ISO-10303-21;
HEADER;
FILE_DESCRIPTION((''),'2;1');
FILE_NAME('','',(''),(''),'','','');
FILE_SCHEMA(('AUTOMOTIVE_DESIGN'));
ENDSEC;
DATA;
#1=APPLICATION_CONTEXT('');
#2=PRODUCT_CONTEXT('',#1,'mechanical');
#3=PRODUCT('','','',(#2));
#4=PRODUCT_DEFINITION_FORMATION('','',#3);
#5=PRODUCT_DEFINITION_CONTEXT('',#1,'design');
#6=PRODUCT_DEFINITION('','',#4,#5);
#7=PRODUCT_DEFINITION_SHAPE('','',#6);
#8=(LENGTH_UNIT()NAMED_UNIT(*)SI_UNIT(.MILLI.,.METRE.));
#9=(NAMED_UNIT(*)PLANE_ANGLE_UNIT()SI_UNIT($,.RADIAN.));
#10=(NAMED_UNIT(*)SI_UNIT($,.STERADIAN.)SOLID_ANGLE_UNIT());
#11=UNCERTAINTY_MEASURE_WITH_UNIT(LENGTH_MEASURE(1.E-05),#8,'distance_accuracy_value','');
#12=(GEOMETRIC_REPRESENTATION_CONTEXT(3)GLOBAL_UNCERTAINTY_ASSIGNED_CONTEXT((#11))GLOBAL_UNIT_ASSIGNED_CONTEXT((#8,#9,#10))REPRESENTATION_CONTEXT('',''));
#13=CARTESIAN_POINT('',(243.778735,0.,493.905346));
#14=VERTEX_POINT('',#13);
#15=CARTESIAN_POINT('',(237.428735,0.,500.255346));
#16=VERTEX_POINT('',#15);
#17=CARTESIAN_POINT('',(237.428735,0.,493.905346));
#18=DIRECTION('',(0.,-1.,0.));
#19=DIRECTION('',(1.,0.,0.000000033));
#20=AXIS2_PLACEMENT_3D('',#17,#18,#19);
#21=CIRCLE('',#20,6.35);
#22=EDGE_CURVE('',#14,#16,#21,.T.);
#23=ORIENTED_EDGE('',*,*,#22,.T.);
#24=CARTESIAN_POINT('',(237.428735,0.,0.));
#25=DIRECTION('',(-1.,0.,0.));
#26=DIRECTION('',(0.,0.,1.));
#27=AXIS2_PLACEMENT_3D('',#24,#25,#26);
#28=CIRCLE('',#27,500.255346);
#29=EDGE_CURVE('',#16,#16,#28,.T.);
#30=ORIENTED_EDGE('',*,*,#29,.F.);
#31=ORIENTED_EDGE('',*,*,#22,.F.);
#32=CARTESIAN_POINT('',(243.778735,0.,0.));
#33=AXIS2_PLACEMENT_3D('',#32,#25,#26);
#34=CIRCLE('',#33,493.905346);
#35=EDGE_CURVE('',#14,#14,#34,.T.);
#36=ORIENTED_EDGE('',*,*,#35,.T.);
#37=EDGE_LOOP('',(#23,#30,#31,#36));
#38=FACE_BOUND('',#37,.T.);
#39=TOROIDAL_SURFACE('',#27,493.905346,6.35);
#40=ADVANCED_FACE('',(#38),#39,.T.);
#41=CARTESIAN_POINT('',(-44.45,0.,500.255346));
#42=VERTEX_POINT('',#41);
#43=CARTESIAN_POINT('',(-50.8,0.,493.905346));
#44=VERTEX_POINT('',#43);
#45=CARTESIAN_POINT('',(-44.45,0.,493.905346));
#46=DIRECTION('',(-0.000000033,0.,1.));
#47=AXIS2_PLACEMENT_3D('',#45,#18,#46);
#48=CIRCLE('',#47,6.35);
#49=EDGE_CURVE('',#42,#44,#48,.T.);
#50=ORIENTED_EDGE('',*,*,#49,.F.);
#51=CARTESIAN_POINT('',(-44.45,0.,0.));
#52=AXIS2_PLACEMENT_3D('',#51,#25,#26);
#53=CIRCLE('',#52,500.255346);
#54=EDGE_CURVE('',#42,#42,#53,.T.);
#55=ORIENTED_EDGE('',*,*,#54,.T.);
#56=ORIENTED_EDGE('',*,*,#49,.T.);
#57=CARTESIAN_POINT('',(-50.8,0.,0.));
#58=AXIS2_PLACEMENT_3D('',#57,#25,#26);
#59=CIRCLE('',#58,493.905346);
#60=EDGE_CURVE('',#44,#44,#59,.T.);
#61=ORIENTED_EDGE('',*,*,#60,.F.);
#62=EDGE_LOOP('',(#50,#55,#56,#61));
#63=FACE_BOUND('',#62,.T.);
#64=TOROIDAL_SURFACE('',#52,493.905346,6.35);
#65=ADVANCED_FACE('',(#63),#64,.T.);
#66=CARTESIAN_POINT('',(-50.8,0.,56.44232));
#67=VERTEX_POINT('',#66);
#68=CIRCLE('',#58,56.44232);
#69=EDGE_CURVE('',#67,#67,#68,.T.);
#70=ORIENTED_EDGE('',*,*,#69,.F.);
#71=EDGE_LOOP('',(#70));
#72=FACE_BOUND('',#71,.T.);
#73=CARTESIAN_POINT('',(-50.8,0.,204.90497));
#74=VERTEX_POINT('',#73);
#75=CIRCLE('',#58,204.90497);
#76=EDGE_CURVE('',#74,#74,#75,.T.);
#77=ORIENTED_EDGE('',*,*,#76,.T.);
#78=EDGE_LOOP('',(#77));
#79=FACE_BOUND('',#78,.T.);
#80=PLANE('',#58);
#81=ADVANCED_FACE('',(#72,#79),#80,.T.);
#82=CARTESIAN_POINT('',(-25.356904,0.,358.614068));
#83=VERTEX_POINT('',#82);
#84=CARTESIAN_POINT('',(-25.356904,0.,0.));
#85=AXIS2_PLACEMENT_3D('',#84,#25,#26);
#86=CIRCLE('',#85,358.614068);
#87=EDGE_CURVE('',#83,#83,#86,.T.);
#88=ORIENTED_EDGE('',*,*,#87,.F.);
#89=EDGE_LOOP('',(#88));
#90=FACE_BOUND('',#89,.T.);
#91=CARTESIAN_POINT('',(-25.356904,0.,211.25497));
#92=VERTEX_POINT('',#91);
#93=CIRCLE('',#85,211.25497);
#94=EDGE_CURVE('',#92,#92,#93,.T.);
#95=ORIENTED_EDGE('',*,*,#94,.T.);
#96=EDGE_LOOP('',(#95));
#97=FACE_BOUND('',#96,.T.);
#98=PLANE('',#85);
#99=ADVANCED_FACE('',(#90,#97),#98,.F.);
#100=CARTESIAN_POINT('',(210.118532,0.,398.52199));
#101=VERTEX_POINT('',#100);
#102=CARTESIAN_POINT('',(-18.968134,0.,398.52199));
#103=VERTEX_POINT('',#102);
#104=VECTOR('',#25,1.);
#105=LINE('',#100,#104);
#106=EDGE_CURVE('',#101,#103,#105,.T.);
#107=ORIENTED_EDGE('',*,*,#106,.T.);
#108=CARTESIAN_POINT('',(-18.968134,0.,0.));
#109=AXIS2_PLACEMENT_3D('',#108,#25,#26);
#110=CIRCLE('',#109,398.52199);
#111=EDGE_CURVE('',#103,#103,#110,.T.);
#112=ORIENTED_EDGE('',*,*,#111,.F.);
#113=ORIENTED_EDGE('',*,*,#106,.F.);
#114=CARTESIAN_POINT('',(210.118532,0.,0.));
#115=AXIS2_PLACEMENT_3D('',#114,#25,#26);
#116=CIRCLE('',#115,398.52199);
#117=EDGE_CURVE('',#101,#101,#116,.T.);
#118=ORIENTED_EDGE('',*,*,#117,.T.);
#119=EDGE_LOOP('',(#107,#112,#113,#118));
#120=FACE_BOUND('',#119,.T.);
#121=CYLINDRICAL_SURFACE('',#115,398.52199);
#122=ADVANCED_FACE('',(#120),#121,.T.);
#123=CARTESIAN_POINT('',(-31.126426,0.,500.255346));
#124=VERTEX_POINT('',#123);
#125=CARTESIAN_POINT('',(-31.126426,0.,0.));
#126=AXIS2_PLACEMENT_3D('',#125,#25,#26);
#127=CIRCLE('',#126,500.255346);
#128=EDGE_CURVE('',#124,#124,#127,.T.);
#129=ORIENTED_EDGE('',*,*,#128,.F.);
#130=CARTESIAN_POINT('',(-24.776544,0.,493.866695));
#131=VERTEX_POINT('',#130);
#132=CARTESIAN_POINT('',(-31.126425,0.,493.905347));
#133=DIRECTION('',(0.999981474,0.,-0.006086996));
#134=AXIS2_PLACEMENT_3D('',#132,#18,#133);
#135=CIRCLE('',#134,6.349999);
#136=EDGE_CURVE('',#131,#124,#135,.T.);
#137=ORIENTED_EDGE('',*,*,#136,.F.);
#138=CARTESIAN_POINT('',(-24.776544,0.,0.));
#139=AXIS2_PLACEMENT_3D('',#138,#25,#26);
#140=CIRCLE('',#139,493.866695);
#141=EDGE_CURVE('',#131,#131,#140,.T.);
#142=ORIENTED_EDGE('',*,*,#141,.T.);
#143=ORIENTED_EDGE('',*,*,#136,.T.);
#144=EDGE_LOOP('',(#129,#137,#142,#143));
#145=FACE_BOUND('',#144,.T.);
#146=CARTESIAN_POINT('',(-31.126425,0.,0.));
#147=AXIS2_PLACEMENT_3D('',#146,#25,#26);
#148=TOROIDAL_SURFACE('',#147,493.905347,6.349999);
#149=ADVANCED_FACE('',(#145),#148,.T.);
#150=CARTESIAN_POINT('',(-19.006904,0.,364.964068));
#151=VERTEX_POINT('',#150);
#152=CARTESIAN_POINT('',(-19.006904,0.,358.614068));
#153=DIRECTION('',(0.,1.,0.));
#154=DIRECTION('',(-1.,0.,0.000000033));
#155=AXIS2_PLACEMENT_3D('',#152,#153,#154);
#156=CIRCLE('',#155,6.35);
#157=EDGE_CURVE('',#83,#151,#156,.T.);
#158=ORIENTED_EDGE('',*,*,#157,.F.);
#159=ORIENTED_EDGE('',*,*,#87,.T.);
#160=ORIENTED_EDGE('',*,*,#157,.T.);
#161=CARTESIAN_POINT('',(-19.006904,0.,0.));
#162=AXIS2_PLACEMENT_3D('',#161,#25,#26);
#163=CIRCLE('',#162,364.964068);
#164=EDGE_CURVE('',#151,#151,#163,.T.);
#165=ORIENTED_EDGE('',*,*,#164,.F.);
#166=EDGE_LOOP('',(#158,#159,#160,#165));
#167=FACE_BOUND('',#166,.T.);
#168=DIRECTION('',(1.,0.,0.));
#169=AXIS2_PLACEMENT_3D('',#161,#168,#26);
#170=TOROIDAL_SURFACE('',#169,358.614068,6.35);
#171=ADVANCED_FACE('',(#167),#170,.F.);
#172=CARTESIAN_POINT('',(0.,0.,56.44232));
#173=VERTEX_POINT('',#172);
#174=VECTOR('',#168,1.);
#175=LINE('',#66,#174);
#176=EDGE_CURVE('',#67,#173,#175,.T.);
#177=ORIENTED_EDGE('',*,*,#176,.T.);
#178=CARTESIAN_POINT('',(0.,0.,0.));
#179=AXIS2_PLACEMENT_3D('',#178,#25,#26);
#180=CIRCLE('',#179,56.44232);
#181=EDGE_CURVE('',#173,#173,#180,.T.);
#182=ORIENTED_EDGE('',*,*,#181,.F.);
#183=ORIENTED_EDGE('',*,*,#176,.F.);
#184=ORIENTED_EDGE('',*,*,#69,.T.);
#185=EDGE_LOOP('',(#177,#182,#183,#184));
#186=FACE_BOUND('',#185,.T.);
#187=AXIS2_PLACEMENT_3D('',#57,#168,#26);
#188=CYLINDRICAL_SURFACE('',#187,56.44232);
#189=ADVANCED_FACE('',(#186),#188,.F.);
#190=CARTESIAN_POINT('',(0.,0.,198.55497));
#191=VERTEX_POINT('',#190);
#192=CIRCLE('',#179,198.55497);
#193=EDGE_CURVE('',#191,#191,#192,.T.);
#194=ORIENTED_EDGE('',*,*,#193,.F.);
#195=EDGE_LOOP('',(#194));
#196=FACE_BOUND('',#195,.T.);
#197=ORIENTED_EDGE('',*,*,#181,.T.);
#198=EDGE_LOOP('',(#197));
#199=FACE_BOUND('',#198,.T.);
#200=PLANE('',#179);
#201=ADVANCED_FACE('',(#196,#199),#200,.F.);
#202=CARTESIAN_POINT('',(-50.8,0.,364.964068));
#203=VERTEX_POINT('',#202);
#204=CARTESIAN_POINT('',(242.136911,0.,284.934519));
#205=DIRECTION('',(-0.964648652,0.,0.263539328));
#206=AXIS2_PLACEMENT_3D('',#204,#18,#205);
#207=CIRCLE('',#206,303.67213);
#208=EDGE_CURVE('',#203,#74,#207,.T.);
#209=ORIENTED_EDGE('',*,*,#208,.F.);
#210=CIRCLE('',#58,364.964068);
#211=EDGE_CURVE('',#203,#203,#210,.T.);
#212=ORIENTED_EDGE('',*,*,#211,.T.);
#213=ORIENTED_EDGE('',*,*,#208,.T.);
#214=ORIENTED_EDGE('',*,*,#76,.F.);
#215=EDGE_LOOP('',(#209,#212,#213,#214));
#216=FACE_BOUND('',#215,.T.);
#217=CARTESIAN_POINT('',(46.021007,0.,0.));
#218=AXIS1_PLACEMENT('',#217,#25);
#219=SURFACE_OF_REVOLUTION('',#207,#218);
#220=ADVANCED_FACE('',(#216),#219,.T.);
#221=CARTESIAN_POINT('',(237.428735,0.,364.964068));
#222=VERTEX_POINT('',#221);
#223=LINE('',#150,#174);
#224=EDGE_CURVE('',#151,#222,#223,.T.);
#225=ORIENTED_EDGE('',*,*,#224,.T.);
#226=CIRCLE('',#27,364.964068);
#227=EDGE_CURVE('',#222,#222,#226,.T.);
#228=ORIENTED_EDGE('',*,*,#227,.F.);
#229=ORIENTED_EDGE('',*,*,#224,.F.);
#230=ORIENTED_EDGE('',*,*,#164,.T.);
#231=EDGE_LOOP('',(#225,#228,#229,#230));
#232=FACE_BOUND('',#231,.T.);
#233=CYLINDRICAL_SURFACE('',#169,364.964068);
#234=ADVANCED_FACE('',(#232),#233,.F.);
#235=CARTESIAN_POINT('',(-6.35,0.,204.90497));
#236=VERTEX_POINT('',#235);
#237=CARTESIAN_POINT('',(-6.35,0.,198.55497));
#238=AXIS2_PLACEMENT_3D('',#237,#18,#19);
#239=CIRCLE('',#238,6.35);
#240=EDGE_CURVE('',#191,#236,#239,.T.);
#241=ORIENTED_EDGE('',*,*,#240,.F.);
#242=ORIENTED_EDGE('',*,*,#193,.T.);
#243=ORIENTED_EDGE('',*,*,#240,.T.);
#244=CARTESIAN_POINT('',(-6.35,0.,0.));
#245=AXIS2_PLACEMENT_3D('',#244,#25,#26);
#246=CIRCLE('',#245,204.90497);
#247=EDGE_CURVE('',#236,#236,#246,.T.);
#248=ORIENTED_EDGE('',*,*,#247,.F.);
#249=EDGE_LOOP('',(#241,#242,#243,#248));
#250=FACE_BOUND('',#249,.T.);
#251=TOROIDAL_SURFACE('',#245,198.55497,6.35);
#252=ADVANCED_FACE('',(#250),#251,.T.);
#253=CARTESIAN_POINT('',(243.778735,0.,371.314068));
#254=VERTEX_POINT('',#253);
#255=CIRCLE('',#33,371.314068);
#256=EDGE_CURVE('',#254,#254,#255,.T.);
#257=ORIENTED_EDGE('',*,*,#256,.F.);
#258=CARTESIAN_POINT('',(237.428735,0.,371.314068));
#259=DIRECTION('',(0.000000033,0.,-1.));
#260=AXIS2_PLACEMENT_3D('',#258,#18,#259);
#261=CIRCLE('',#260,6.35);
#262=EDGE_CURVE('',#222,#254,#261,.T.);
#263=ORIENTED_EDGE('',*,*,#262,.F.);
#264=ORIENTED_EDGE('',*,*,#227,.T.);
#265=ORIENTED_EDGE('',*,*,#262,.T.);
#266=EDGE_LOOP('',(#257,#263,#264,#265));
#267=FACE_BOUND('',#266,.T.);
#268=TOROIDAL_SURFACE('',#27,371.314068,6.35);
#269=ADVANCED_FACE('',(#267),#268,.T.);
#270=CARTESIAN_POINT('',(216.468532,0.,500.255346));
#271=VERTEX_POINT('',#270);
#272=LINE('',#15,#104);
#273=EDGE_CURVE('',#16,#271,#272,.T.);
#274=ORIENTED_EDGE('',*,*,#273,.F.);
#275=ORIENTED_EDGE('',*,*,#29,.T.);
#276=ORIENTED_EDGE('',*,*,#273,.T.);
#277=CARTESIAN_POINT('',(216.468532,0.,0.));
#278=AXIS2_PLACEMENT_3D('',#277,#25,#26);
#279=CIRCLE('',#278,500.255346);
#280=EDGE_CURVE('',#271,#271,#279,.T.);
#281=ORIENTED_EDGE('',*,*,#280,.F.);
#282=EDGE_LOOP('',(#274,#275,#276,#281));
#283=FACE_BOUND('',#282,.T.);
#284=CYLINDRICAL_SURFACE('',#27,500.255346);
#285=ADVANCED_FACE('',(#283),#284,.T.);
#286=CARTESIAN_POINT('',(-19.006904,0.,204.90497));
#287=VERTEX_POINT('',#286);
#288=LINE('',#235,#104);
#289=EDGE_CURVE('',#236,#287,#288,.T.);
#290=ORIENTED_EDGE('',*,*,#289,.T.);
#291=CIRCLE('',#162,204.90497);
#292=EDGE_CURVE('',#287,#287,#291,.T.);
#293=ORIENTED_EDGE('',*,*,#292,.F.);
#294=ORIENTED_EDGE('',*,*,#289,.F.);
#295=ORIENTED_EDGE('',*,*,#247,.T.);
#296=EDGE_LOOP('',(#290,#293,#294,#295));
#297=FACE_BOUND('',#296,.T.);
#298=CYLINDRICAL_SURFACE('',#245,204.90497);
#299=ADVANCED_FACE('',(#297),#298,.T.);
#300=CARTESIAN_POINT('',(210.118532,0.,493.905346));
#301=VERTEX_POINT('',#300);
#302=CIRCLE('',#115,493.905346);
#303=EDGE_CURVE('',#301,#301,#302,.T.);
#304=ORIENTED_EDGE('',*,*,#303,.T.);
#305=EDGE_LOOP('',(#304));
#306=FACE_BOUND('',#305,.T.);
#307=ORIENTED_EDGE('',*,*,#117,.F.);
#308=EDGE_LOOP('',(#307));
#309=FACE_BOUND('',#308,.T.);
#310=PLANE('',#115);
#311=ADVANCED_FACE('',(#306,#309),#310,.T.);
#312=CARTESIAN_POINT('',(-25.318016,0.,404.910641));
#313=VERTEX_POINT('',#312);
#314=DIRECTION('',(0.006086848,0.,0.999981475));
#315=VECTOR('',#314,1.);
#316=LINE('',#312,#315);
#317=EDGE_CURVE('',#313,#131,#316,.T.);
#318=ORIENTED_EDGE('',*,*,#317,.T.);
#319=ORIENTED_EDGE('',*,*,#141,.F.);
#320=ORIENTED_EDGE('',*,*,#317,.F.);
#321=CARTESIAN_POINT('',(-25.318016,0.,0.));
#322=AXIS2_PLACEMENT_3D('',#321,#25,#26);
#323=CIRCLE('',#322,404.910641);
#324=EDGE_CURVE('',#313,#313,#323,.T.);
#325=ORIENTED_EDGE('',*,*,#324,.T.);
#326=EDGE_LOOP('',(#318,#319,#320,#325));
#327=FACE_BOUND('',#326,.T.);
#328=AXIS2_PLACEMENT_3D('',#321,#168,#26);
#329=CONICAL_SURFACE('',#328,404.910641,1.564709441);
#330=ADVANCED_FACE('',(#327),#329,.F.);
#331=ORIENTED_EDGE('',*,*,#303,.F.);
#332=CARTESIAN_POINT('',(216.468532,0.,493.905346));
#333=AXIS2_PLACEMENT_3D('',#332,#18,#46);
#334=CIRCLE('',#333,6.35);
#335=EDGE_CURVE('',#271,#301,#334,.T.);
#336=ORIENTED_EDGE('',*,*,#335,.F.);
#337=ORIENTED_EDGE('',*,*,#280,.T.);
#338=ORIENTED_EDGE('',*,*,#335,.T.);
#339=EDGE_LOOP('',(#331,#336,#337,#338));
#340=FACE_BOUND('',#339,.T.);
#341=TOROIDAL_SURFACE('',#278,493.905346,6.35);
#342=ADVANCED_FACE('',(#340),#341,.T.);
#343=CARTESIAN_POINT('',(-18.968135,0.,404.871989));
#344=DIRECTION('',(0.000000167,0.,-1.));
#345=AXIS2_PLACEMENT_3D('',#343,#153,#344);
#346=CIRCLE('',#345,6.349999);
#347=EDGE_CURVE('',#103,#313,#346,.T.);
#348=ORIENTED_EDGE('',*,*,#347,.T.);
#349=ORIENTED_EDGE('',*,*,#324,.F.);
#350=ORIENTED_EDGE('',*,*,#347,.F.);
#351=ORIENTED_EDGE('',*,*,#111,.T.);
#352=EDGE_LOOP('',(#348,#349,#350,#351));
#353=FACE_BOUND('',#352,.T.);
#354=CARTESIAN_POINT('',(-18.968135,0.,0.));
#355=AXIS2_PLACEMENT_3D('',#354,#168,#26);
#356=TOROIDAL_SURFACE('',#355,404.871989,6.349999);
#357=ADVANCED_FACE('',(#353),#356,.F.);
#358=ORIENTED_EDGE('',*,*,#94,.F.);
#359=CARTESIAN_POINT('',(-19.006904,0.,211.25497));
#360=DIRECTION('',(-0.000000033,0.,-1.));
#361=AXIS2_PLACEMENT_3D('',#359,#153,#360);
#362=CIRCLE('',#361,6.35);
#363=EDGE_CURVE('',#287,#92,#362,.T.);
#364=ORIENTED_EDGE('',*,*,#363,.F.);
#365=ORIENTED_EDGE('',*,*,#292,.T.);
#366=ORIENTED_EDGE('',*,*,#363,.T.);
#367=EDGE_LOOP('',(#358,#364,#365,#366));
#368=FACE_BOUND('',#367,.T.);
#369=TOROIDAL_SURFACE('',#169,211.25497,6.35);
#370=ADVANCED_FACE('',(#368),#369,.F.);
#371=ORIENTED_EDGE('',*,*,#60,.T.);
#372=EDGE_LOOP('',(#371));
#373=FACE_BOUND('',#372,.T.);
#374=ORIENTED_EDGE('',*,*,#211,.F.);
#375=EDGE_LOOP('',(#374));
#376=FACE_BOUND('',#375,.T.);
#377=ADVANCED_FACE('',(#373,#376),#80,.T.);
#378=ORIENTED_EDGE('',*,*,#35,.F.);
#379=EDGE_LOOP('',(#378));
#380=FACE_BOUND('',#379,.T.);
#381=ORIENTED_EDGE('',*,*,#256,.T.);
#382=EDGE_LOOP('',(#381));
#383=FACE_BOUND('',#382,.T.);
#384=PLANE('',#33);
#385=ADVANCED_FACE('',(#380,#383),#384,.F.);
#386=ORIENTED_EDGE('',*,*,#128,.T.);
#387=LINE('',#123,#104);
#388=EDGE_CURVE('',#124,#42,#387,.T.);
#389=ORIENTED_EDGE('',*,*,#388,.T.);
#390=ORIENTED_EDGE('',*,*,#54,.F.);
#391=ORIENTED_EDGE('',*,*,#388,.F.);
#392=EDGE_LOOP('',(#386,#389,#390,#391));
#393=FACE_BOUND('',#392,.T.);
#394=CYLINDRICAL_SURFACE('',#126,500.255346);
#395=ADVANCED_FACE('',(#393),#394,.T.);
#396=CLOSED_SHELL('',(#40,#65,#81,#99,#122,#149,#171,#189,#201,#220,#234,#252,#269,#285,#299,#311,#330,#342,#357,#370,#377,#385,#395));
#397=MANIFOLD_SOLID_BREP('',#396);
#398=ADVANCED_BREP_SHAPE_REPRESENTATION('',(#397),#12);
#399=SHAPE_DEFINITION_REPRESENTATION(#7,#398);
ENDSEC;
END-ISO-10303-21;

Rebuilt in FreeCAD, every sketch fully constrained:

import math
import FreeCAD as App
import Part
import Sketcher
Q = App.Units.Quantity

doc = App.newDocument("Part")
body = doc.addObject("PartDesign::Body", "Body")

sketch1 = doc.addObject("Sketcher::SketchObject", "Sketch")
body.addObject(sketch1)
sketch1.AttachmentSupport = (doc.XZ_Plane, [""])
sketch1.MapMode = "FlatFace"
sketch1.addGeometry(Part.LineSegment(App.Vector(-50.8, 493.905346, 0), App.Vector(-50.8, 364.964068, 0)), False)
sketch1.addGeometry(Part.ArcOfCircle(Part.Circle(App.Vector(242.136911, 284.934519, 0), App.Vector(0, 0, 1), 303.67213), math.radians(164.719823), math.radians(195.280177)), False)
sketch1.addGeometry(Part.LineSegment(App.Vector(-50.8, 204.90497, 0), App.Vector(-50.8, 56.44232, 0)), False)
sketch1.addGeometry(Part.LineSegment(App.Vector(-50.8, 56.44232, 0), App.Vector(0, 56.44232, 0)), False)
sketch1.addGeometry(Part.LineSegment(App.Vector(0, 56.44232, 0), App.Vector(0, 198.55497, 0)), False)
sketch1.addGeometry(Part.ArcOfCircle(Part.Circle(App.Vector(-6.35, 198.55497, 0), App.Vector(0, 0, 1), 6.35), math.radians(0.000002), math.radians(89.999998)), False)
sketch1.addGeometry(Part.LineSegment(App.Vector(-6.35, 204.90497, 0), App.Vector(-19.006904, 204.90497, 0)), False)
sketch1.addGeometry(Part.ArcOfCircle(Part.Circle(App.Vector(-19.006904, 211.25497, 0), App.Vector(0, 0, 1), 6.35), math.radians(-179.999998), math.radians(-90.000002)), False)
sketch1.addGeometry(Part.LineSegment(App.Vector(-25.356904, 211.25497, 0), App.Vector(-25.356904, 358.614068, 0)), False)
sketch1.addGeometry(Part.ArcOfCircle(Part.Circle(App.Vector(-19.006904, 358.614068, 0), App.Vector(0, 0, 1), 6.35), math.radians(90.000002), math.radians(179.999998)), False)
sketch1.addGeometry(Part.LineSegment(App.Vector(-19.006904, 364.964068, 0), App.Vector(237.428735, 364.964068, 0)), False)
sketch1.addGeometry(Part.ArcOfCircle(Part.Circle(App.Vector(237.428735, 371.314068, 0), App.Vector(0, 0, 1), 6.35), math.radians(-89.999998), math.radians(-0.000002)), False)
sketch1.addGeometry(Part.LineSegment(App.Vector(243.778735, 371.314068, 0), App.Vector(243.778735, 493.905346, 0)), False)
sketch1.addGeometry(Part.ArcOfCircle(Part.Circle(App.Vector(237.428735, 493.905346, 0), App.Vector(0, 0, 1), 6.35), math.radians(0.000002), math.radians(89.999998)), False)
sketch1.addGeometry(Part.LineSegment(App.Vector(237.428735, 500.255346, 0), App.Vector(216.468532, 500.255346, 0)), False)
sketch1.addGeometry(Part.ArcOfCircle(Part.Circle(App.Vector(216.468532, 493.905346, 0), App.Vector(0, 0, 1), 6.35), math.radians(90.000002), math.radians(179.999998)), False)
sketch1.addGeometry(Part.LineSegment(App.Vector(210.118532, 493.905346, 0), App.Vector(210.118532, 398.52199, 0)), False)
sketch1.addGeometry(Part.LineSegment(App.Vector(210.118532, 398.52199, 0), App.Vector(-18.968134, 398.52199, 0)), False)
sketch1.addGeometry(Part.ArcOfCircle(Part.Circle(App.Vector(-18.968135, 404.871989, 0), App.Vector(0, 0, 1), 6.349999), math.radians(179.651239), math.radians(270.00001)), False)
sketch1.addGeometry(Part.LineSegment(App.Vector(-25.318016, 404.910641, 0), App.Vector(-24.776544, 493.866695, 0)), False)
sketch1.addGeometry(Part.ArcOfCircle(Part.Circle(App.Vector(-31.126425, 493.905347, 0), App.Vector(0, 0, 1), 6.349999), math.radians(-0.348761), math.radians(90.00001)), False)
sketch1.addGeometry(Part.LineSegment(App.Vector(-31.126426, 500.255346, 0), App.Vector(-44.45, 500.255346, 0)), False)
sketch1.addGeometry(Part.ArcOfCircle(Part.Circle(App.Vector(-44.45, 493.905346, 0), App.Vector(0, 0, 1), 6.35), math.radians(90.000002), math.radians(179.999998)), False)
sketch1.addConstraint(Sketcher.Constraint("Coincident", 0, 2, 1, 1))
sketch1.addConstraint(Sketcher.Constraint("Coincident", 1, 2, 2, 1))
sketch1.addConstraint(Sketcher.Constraint("Coincident", 2, 2, 3, 1))
sketch1.addConstraint(Sketcher.Constraint("Coincident", 3, 2, 4, 1))
sketch1.addConstraint(Sketcher.Constraint("Tangent", 4, 2, 5, 1))
sketch1.addConstraint(Sketcher.Constraint("Tangent", 5, 2, 6, 1))
sketch1.addConstraint(Sketcher.Constraint("Tangent", 6, 2, 7, 2))
sketch1.addConstraint(Sketcher.Constraint("Tangent", 7, 1, 8, 1))
sketch1.addConstraint(Sketcher.Constraint("Tangent", 8, 2, 9, 2))
sketch1.addConstraint(Sketcher.Constraint("Tangent", 9, 1, 10, 1))
sketch1.addConstraint(Sketcher.Constraint("Tangent", 10, 2, 11, 1))
sketch1.addConstraint(Sketcher.Constraint("Tangent", 11, 2, 12, 1))
sketch1.addConstraint(Sketcher.Constraint("Tangent", 12, 2, 13, 1))
sketch1.addConstraint(Sketcher.Constraint("Tangent", 13, 2, 14, 1))
sketch1.addConstraint(Sketcher.Constraint("Tangent", 14, 2, 15, 1))
sketch1.addConstraint(Sketcher.Constraint("Tangent", 15, 2, 16, 1))
sketch1.addConstraint(Sketcher.Constraint("Coincident", 16, 2, 17, 1))
sketch1.addConstraint(Sketcher.Constraint("Tangent", 17, 2, 18, 2))
sketch1.addConstraint(Sketcher.Constraint("Tangent", 18, 1, 19, 1))
sketch1.addConstraint(Sketcher.Constraint("Tangent", 19, 2, 20, 1))
sketch1.addConstraint(Sketcher.Constraint("Tangent", 20, 2, 21, 1))
sketch1.addConstraint(Sketcher.Constraint("Tangent", 21, 2, 22, 1))
sketch1.addConstraint(Sketcher.Constraint("Tangent", 22, 2, 0, 1))
sketch1.addConstraint(Sketcher.Constraint("Vertical", 0))
sketch1.addConstraint(Sketcher.Constraint("Vertical", 2))
sketch1.addConstraint(Sketcher.Constraint("Horizontal", 3))
sketch1.addConstraint(Sketcher.Constraint("Vertical", 4))
sketch1.addConstraint(Sketcher.Constraint("Horizontal", 6))
sketch1.addConstraint(Sketcher.Constraint("Vertical", 8))
sketch1.addConstraint(Sketcher.Constraint("Horizontal", 10))
sketch1.addConstraint(Sketcher.Constraint("Vertical", 12))
sketch1.addConstraint(Sketcher.Constraint("Horizontal", 14))
sketch1.addConstraint(Sketcher.Constraint("Vertical", 16))
sketch1.addConstraint(Sketcher.Constraint("Horizontal", 17))
sketch1.addConstraint(Sketcher.Constraint("Horizontal", 21))
sketch1.addConstraint(Sketcher.Constraint("Equal", 5, 7))
sketch1.addConstraint(Sketcher.Constraint("Equal", 7, 9))
sketch1.addConstraint(Sketcher.Constraint("Equal", 9, 11))
sketch1.addConstraint(Sketcher.Constraint("Equal", 11, 13))
sketch1.addConstraint(Sketcher.Constraint("Equal", 13, 15))
sketch1.addConstraint(Sketcher.Constraint("Equal", 15, 18))
sketch1.addConstraint(Sketcher.Constraint("Equal", 18, 20))
sketch1.addConstraint(Sketcher.Constraint("Equal", 20, 22))
sketch1.addConstraint(Sketcher.Constraint("PointOnObject", 3, 2, -2))
sketch1.addConstraint(Sketcher.Constraint("Horizontal", 15, 3, 20, 3))
sketch1.addConstraint(Sketcher.Constraint("Horizontal", 1, 2, 5, 2))
sketch1.addConstraint(Sketcher.Constraint("Horizontal", 0, 2, 9, 1))
sketch1.addConstraint(Sketcher.Constraint("Vertical", 0, 2, 1, 2))
sketch1.addConstraint(Sketcher.Constraint("DistanceX", 3, 1, 3, 2, Q("2 in")))
sketch1.addConstraint(Sketcher.Constraint("Radius", 5, Q("0.25 in")))
sketch1.addConstraint(Sketcher.Constraint("Radius", 1, 303.67213))
sketch1.addConstraint(Sketcher.Constraint("Distance", 19, 88.957702))
sketch1.addConstraint(Sketcher.Constraint("DistanceX", 10, 1, 10, 2, 256.435639))
sketch1.addConstraint(Sketcher.Constraint("DistanceY", 0, 2, 0, 1, 128.941278))
sketch1.addConstraint(Sketcher.Constraint("DistanceY", 2, 2, 2, 1, 148.46265))
sketch1.addConstraint(Sketcher.Constraint("DistanceY", 5, 3, 9, 3, 160.059098))
sketch1.addConstraint(Sketcher.Constraint("DistanceX", 6, 2, 6, 1, 12.656904))
sketch1.addConstraint(Sketcher.Constraint("DistanceX", 14, 2, 14, 1, 20.960203))
sketch1.addConstraint(Sketcher.Constraint("DistanceX", 17, 2, 17, 1, 229.086666))
sketch1.addConstraint(Sketcher.Constraint("DistanceX", 21, 2, 21, 1, 13.323574))
sketch1.addConstraint(Sketcher.Constraint("DistanceY", -1, 1, 1, 3, 284.934519))
revolution = doc.addObject("PartDesign::Revolution", "Revolution")
body.addObject(revolution)
revolution.Profile = sketch1
revolution.ReferenceAxis = (sketch1, ["H_Axis"])
revolution.Angle = 360

doc.recompute()
